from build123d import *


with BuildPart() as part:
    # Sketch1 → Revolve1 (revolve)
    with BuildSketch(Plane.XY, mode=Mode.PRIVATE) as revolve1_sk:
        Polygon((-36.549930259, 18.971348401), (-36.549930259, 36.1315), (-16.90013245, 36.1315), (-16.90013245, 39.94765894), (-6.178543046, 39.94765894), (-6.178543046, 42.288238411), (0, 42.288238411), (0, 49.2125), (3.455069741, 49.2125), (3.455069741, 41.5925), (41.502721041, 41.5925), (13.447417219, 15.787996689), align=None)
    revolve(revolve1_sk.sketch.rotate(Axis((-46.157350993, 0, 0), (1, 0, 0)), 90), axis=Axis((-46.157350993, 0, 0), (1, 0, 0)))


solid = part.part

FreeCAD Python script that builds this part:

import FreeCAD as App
import Part
import Sketcher
Q = App.Units.Quantity


def add_polygon(sketch, points):
    """Adds a closed chain of lines whose ends are joined by coincident constraints."""
    first, n = sketch.GeometryCount, len(points)
    for a, b in zip(points, points[1:] + points[:1]):
        sketch.addGeometry(Part.LineSegment(App.Vector(*a, 0), App.Vector(*b, 0)), False)
    for i in range(n):
        sketch.addConstraint(Sketcher.Constraint("Coincident", first + i, 2, first + (i + 1) % n, 1))

doc = App.newDocument("Part")
body = doc.addObject("PartDesign::Body", "Body")

sketch1 = body.newObject("Sketcher::SketchObject", "Sketch")
sketch1.AttachmentSupport = (doc.getObject("XY_Plane"), [""])
sketch1.MapMode = "FlatFace"
add_polygon(sketch1, [(-36.54993, 36.1315), (-36.54993, 18.971348), (13.447417, 15.787997), (41.502721, 41.5925), (3.45507, 41.5925), (3.45507, 49.2125), (0, 49.2125), (0, 42.288238), (-6.178543, 42.288238), (-6.178543, 39.947659), (-16.900132, 39.947659), (-16.900132, 36.1315)])
sketch1.addConstraint([
    Sketcher.Constraint("Vertical", 0),
    Sketcher.Constraint("Horizontal", 3),
    Sketcher.Constraint("Vertical", 4),
    Sketcher.Constraint("Horizontal", 5),
    Sketcher.Constraint("Vertical", 6),
    Sketcher.Constraint("Horizontal", 7),
    Sketcher.Constraint("Vertical", 8),
    Sketcher.Constraint("Horizontal", 9),
    Sketcher.Constraint("Vertical", 10),
    Sketcher.Constraint("Horizontal", 11),
    Sketcher.Constraint("PointOnObject", 5, 2, -2),
    Sketcher.Constraint("DistanceY", 4, 1, 4, 2, Q("0.3 in")),
    Sketcher.Constraint("DistanceY", -1, 1, 4, 2, Q("1.9375 in")),
    Sketcher.Constraint("DistanceX", 0, 2, 3, 2, Q("1.575 in")),
    Sketcher.Constraint("DistanceY", 10, 2, 3, 2, Q("0.215 in")),
    Sketcher.Constraint("DistanceX", 3, 2, 3, 1, 38.047651),
    Sketcher.Constraint("DistanceX", 5, 2, 5, 1, 3.45507),
    Sketcher.Constraint("DistanceX", 9, 2, 9, 1, 10.721589),
    Sketcher.Constraint("DistanceY", 0, 2, 0, 1, 17.160152),
    Sketcher.Constraint("DistanceY", 6, 2, 6, 1, 6.924262),
    Sketcher.Constraint("DistanceY", 8, 2, 8, 1, 2.340579),
    Sketcher.Constraint("DistanceX", 7, 2, 7, 1, 6.178543),
    Sketcher.Constraint("DistanceY", 1, 2, 0, 2, 3.183352),
    Sketcher.Constraint("DistanceX", 7, 2, 1, 2, 19.62596),
])
revolution = body.newObject("PartDesign::Revolution", "Revolution")
revolution.Profile = sketch1
revolution.ReferenceAxis = (sketch1, ["H_Axis"])
revolution.Angle = 360

doc.recompute()
